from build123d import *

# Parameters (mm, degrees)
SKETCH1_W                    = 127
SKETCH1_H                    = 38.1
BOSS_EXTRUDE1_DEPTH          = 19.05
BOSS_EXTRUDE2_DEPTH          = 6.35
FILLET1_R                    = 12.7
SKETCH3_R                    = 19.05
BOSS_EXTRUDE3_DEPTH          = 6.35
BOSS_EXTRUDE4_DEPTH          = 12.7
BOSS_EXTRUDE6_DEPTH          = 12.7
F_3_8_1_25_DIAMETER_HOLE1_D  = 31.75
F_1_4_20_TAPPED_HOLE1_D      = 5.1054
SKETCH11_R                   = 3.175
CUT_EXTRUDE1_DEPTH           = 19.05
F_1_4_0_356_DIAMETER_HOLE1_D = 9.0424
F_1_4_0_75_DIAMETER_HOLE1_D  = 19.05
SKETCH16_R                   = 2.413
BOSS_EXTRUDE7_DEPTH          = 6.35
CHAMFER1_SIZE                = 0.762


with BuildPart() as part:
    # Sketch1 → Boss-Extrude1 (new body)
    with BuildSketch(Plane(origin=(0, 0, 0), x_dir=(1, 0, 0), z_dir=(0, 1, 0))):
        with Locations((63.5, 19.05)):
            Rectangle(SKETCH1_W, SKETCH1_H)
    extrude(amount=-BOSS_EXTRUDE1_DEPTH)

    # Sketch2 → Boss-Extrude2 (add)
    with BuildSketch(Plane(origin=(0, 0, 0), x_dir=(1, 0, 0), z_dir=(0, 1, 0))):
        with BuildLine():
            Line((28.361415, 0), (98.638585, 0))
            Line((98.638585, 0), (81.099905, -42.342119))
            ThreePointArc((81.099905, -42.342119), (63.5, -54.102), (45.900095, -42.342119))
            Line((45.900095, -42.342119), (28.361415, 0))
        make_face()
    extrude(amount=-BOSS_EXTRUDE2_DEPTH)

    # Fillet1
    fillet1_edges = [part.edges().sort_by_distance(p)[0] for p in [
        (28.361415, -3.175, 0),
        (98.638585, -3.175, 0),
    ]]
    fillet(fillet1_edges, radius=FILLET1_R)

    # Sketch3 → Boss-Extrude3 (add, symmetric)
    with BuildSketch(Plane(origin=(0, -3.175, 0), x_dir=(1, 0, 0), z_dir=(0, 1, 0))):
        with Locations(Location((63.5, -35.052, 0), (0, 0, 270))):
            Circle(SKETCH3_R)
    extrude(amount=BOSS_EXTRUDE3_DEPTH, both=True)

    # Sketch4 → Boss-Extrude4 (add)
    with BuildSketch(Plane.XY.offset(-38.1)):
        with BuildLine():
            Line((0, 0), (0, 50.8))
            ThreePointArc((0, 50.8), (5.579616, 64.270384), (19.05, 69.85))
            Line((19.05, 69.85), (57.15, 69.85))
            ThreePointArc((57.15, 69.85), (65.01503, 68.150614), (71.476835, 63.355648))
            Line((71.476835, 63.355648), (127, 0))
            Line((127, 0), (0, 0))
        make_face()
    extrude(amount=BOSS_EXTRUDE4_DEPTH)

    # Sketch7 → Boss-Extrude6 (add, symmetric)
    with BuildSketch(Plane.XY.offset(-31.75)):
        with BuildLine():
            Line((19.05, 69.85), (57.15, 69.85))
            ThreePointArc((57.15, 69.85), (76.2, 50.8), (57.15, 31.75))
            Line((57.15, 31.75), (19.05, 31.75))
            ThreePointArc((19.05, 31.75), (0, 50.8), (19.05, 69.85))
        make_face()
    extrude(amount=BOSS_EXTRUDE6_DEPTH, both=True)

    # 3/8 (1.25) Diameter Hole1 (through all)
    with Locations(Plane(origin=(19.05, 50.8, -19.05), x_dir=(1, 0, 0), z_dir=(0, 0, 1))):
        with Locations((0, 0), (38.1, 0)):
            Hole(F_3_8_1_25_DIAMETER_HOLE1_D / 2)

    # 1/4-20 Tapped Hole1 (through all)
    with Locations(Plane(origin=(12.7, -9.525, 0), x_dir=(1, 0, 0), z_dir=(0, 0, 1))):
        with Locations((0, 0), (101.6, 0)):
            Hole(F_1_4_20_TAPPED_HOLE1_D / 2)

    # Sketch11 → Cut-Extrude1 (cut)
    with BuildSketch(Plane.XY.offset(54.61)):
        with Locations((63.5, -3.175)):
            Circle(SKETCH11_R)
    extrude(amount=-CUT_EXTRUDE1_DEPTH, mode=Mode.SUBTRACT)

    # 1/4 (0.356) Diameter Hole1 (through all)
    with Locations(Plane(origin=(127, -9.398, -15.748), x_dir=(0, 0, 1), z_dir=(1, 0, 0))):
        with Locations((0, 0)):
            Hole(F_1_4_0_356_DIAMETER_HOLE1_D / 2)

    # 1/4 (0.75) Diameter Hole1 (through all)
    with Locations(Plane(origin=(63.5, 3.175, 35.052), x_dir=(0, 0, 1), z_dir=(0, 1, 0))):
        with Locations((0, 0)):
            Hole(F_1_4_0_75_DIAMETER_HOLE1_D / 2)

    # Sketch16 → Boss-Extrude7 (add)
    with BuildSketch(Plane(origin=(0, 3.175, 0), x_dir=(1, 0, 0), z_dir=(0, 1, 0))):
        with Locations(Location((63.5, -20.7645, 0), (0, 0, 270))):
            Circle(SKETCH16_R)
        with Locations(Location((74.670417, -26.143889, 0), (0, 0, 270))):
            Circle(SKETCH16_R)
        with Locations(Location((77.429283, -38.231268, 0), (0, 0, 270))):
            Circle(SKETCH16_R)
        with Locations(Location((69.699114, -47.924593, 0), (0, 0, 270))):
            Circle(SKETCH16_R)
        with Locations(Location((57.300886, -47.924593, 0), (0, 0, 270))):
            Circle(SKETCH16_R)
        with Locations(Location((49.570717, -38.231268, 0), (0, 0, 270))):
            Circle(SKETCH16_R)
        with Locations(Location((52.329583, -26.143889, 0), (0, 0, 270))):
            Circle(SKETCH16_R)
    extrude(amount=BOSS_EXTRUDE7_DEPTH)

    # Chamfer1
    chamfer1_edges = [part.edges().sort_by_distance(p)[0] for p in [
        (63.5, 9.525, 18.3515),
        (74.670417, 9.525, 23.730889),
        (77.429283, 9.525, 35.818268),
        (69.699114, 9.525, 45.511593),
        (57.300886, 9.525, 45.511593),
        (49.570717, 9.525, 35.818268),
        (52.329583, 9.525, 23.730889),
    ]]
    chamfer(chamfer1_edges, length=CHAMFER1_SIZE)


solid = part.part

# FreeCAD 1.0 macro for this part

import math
import FreeCAD as App
import Part
import Sketcher
Q = App.Units.Quantity


def edges_at(feature, points):
    """Names of the edges that pass closest to the given points."""
    edges = feature.Shape.Edges
    near = lambda p: min(range(len(edges)), key=lambda i: edges[i].distToShape(Part.Vertex(*p))[0])
    return sorted({f"Edge{near(p) + 1}" for p in points})


def add_polygon(sketch, points):
    """Adds a closed chain of lines whose ends are joined by coincident constraints."""
    first, n = sketch.GeometryCount, len(points)
    for a, b in zip(points, points[1:] + points[:1]):
        sketch.addGeometry(Part.LineSegment(App.Vector(*a, 0), App.Vector(*b, 0)), False)
    for i in range(n):
        sketch.addConstraint(Sketcher.Constraint("Coincident", first + i, 2, first + (i + 1) % n, 1))

doc = App.newDocument("Part")
body = doc.addObject("PartDesign::Body", "Body")

# Sketch on XZ plane
sketch1 = body.newObject("Sketcher::SketchObject", "Sketch")
sketch1.AttachmentSupport = (doc.getObject("XZ_Plane"), [""])
sketch1.MapMode = "FlatFace"
add_polygon(sketch1, [(0, -38), (0, 0), (127, 0), (127, -38)])  # lines 0-3
sketch1.addConstraint([
    Sketcher.Constraint("Vertical", 0),
    Sketcher.Constraint("Horizontal", 1),
    Sketcher.Constraint("Vertical", 2),
    Sketcher.Constraint("Horizontal", 3),
    Sketcher.Constraint("Coincident", 0, 2, -1, 1),
    Sketcher.Constraint("DistanceX", 1, 1, 1, 2, Q("5 in")),
    Sketcher.Constraint("DistanceY", 0, 1, 0, 2, Q("1.5 in")),
])
pad1 = body.newObject("PartDesign::Pad", "Pad")
pad1.Profile = sketch1
pad1.Length = Q("0.75 in")

# Sketch on XZ plane
sketch2 = body.newObject("Sketcher::SketchObject", "Sketch001")
sketch2.AttachmentSupport = (doc.getObject("XZ_Plane"), [""])
sketch2.MapMode = "FlatFace"
sketch2.addGeometry([
    Part.LineSegment(App.Vector(99, 0, 0), App.Vector(28, 0, 0)),
    Part.LineSegment(App.Vector(28, 0, 0), App.Vector(46, 42, 0)),
    Part.ArcOfCircle(Part.Circle(App.Vector(64, 35, 0), App.Vector(0, 0, 1), 19), math.radians(22), math.radians(158)),
    Part.LineSegment(App.Vector(81, 42, 0), App.Vector(99, 0, 0)),
], False)
sketch2.addConstraint([
    Sketcher.Constraint("Coincident", 0, 2, 1, 1),
    Sketcher.Constraint("Tangent", 1, 2, 2, 2),
    Sketcher.Constraint("Tangent", 2, 1, 3, 1),
    Sketcher.Constraint("Coincident", 3, 2, 0, 1),
    Sketcher.Constraint("Horizontal", 0),
    Sketcher.Constraint("PointOnObject", 0, 2, -1),
    Sketcher.Constraint("Horizontal", 1, 2, 2, 1),
    Sketcher.Constraint("Radius", 2, Q("0.75 in")),
    Sketcher.Constraint("DistanceX", -1, 1, 2, 3, Q("2.5 in")),
    Sketcher.Constraint("Angle", 1, Q("67.5 deg")),
    Sketcher.Constraint("DistanceY", -1, 1, 2, 3, Q("1.38 in")),
])
pad2 = body.newObject("PartDesign::Pad", "Pad001")
pad2.Profile = sketch2
pad2.Length = Q("0.25 in")
doc.recompute()

fillet = body.newObject("PartDesign::Fillet", "Fillet")
fillet.Base = (pad2, edges_at(pad2, [(28.361, -3.175, 0), (98.639, -3.175, 0)]))
fillet.Radius = Q("0.5 in")

# Sketch on XZ plane
sketch3 = body.newObject("Sketcher::SketchObject", "Sketch002")
sketch3.AttachmentSupport = (doc.getObject("XZ_Plane"), [""])
sketch3.MapMode = "FlatFace"
sketch3.AttachmentOffset = App.Placement(App.Vector(0, 0, 0.125 * 25.4), App.Rotation())
sketch3.addGeometry(Part.Circle(App.Vector(64, 35, 0), App.Vector(0, 0, 1), 19), False)
sketch3.addConstraint([
    Sketcher.Constraint("Diameter", 0, Q("1.5 in")),
    Sketcher.Constraint("DistanceX", -1, 1, 0, 3, Q("2.5 in")),
    Sketcher.Constraint("DistanceY", -1, 1, 0, 3, Q("1.38 in")),
])
pad3 = body.newObject("PartDesign::Pad", "Pad002")
pad3.Profile = sketch3
pad3.Length = Q("0.5 in")
pad3.Midplane = True

# Sketch on XY plane
sketch4 = body.newObject("Sketcher::SketchObject", "Sketch003")
sketch4.AttachmentSupport = (doc.getObject("XY_Plane"), [""])
sketch4.MapMode = "FlatFace"
sketch4.AttachmentOffset = App.Placement(App.Vector(0, 0, -1.5 * 25.4), App.Rotation())
sketch4.addGeometry([
    Part.LineSegment(App.Vector(0, 51, 0), App.Vector(0, 0, 0)),  # 0
    Part.LineSegment(App.Vector(0, 0, 0), App.Vector(127, 0, 0)),  # 1
    Part.LineSegment(App.Vector(127, 0, 0), App.Vector(71, 63, 0)),  # 2
    Part.ArcOfCircle(Part.Circle(App.Vector(57, 51, 0), App.Vector(0, 0, 1), 19), math.radians(41), math.radians(90)),  # 3
    Part.LineSegment(App.Vector(57, 70, 0), App.Vector(19, 70, 0)),  # 4
    Part.ArcOfCircle(Part.Circle(App.Vector(19, 51, 0), App.Vector(0, 0, 1), 19), math.radians(90), math.radians(180)),  # 5
], False)
sketch4.addConstraint([
    Sketcher.Constraint("Coincident", 0, 2, 1, 1),
    Sketcher.Constraint("Coincident", 1, 2, 2, 1),
    Sketcher.Constraint("Tangent", 2, 2, 3, 1),
    Sketcher.Constraint("Tangent", 3, 2, 4, 1),
    Sketcher.Constraint("Tangent", 4, 2, 5, 1),
    Sketcher.Constraint("Tangent", 5, 2, 0, 1),
    Sketcher.Constraint("Vertical", 0),
    Sketcher.Constraint("Horizontal", 1),
    Sketcher.Constraint("Horizontal", 4),
    Sketcher.Constraint("Coincident", 0, 2, -1, 1),
    Sketcher.Constraint("Equal", 3, 5),
    Sketcher.Constraint("DistanceX", 1, 1, 1, 2, Q("5 in")),
    Sketcher.Constraint("DistanceY", 0, 2, 0, 1, Q("2 in")),
    Sketcher.Constraint("Radius", 3, Q("0.75 in")),
    Sketcher.Constraint("DistanceX", 4, 2, 4, 1, Q("1.5 in")),
])
pad4 = body.newObject("PartDesign::Pad", "Pad003")
pad4.Profile = sketch4
pad4.Length = Q("0.5 in")

# Sketch on XY plane
sketch5 = body.newObject("Sketcher::SketchObject", "Sketch004")
sketch5.AttachmentSupport = (doc.getObject("XY_Plane"), [""])
sketch5.MapMode = "FlatFace"
sketch5.AttachmentOffset = App.Placement(App.Vector(0, 0, -1.25 * 25.4), App.Rotation())
sketch5.addGeometry([
    Part.LineSegment(App.Vector(57, 70, 0), App.Vector(19, 70, 0)),
    Part.ArcOfCircle(Part.Circle(App.Vector(19, 51, 0), App.Vector(0, 0, 1), 19), math.radians(90), math.radians(270)),
    Part.LineSegment(App.Vector(19, 32, 0), App.Vector(57, 32, 0)),
    Part.ArcOfCircle(Part.Circle(App.Vector(57, 51, 0), App.Vector(0, 0, 1), 19), math.radians(-90), math.radians(90)),
], False)
sketch5.addConstraint([
    Sketcher.Constraint("Tangent", 0, 2, 1, 1),
    Sketcher.Constraint("Tangent", 1, 2, 2, 1),
    Sketcher.Constraint("Tangent", 2, 2, 3, 1),
    Sketcher.Constraint("Tangent", 3, 2, 0, 1),
    Sketcher.Constraint("Horizontal", 0),
    Sketcher.Constraint("Horizontal", 2),
    Sketcher.Constraint("Radius", 1, Q("0.75 in")),
    Sketcher.Constraint("DistanceX", 0, 2, 0, 1, Q("1.5 in")),
    Sketcher.Constraint("DistanceY", -1, 1, 1, 3, Q("2 in")),
    Sketcher.Constraint("DistanceX", -1, 1, 1, 3, Q("0.75 in")),
])
pad5 = body.newObject("PartDesign::Pad", "Pad004")
pad5.Profile = sketch5
pad5.Length = Q("1 in")
pad5.Midplane = True

# Sketch on XY plane
sketch6 = body.newObject("Sketcher::SketchObject", "Sketch005")
sketch6.AttachmentSupport = (doc.getObject("XY_Plane"), [""])
sketch6.MapMode = "FlatFace"
sketch6.AttachmentOffset = App.Placement(App.Vector(0, 0, -0.75 * 25.4), App.Rotation())
sketch6.addGeometry([
    Part.Circle(App.Vector(19, 51, 0), App.Vector(0, 0, 1), 16),
    Part.Circle(App.Vector(57, 51, 0), App.Vector(0, 0, 1), 16),
], False)
sketch6.addConstraint([
    Sketcher.Constraint("Equal", 0, 1),
    Sketcher.Constraint("Horizontal", 0, 3, 1, 3),
    Sketcher.Constraint("Diameter", 0, Q("1.25 in")),
    Sketcher.Constraint("DistanceY", -1, 1, 0, 3, Q("2 in")),
    Sketcher.Constraint("DistanceX", 0, 3, 1, 3, Q("1.5 in")),
    Sketcher.Constraint("DistanceX", -1, 1, 0, 3, Q("0.75 in")),
])
doc.recompute()
hole = body.newObject("PartDesign::Hole", "Hole")
hole.Profile = sketch6
hole.ThreadType = "None"
hole.Diameter = Q("1.25 in")
hole.DepthType = "ThroughAll"

# Sketch on XY plane
sketch7 = body.newObject("Sketcher::SketchObject", "Sketch006")
sketch7.AttachmentSupport = (doc.getObject("XY_Plane"), [""])
sketch7.MapMode = "FlatFace"
sketch7.addGeometry([
    Part.Circle(App.Vector(12.7, -9.5, 0), App.Vector(0, 0, 1), 2.6),
    Part.Circle(App.Vector(114.3, -9.5, 0), App.Vector(0, 0, 1), 2.6),
], False)
sketch7.addConstraint([
    Sketcher.Constraint("Equal", 0, 1),
    Sketcher.Constraint("Horizontal", 0, 3, 1, 3),
    Sketcher.Constraint("Diameter", 0, Q("0.201 in")),
    Sketcher.Constraint("DistanceX", 0, 3, 1, 3, Q("4 in")),
    Sketcher.Constraint("DistanceX", -1, 1, 0, 3, Q("0.5 in")),
    Sketcher.Constraint("DistanceY", 0, 3, -1, 1, Q("0.375 in")),
])
doc.recompute()
hole2 = body.newObject("PartDesign::Hole", "Hole001")
hole2.Profile = sketch7
hole2.ThreadType = "None"
hole2.Diameter = Q("0.201 in")
hole2.DepthType = "ThroughAll"

# Sketch on XY plane
sketch8 = body.newObject("Sketcher::SketchObject", "Sketch007")
sketch8.AttachmentSupport = (doc.getObject("XY_Plane"), [""])
sketch8.MapMode = "FlatFace"
sketch8.AttachmentOffset = App.Placement(App.Vector(0, 0, 2.15 * 25.4), App.Rotation())
sketch8.addGeometry(Part.Circle(App.Vector(63.5, -3.2, 0), App.Vector(0, 0, 1), 3.2), False)
sketch8.addConstraint([
    Sketcher.Constraint("Diameter", 0, Q("0.25 in")),
    Sketcher.Constraint("DistanceX", -1, 1, 0, 3, Q("2.5 in")),
    Sketcher.Constraint("DistanceY", 0, 3, -1, 1, Q("0.125 in")),
])
pocket1 = body.newObject("PartDesign::Pocket", "Pocket")
pocket1.Profile = sketch8
pocket1.Length = Q("0.75 in")

# Sketch on YZ plane
sketch9 = body.newObject("Sketcher::SketchObject", "Sketch008")
sketch9.AttachmentSupport = (doc.getObject("YZ_Plane"), [""])
sketch9.MapMode = "FlatFace"
sketch9.AttachmentOffset = App.Placement(App.Vector(0, 0, 5 * 25.4), App.Rotation())
sketch9.addGeometry(Part.Circle(App.Vector(-9.4, -15.7, 0), App.Vector(0, 0, 1), 4.5), False)
sketch9.addConstraint([
    Sketcher.Constraint("Diameter", 0, Q("0.356 in")),
    Sketcher.Constraint("DistanceX", 0, 3, -1, 1, Q("0.37 in")),
    Sketcher.Constraint("DistanceY", 0, 3, -1, 1, Q("0.62 in")),
])
doc.recompute()
hole3 = body.newObject("PartDesign::Hole", "Hole002")
hole3.Profile = sketch9
hole3.ThreadType = "None"
hole3.Diameter = Q("0.356 in")
hole3.DepthType = "ThroughAll"

# Sketch on XZ plane
sketch10 = body.newObject("Sketcher::SketchObject", "Sketch009")
sketch10.AttachmentSupport = (doc.getObject("XZ_Plane"), [""])
sketch10.MapMode = "FlatFace"
sketch10.AttachmentOffset = App.Placement(App.Vector(0, 0, -0.125 * 25.4), App.Rotation())
sketch10.addGeometry(Part.Circle(App.Vector(64, 35, 0), App.Vector(0, 0, 1), 10), False)
sketch10.addConstraint([
    Sketcher.Constraint("Diameter", 0, Q("0.75 in")),
    Sketcher.Constraint("DistanceX", -1, 1, 0, 3, Q("2.5 in")),
    Sketcher.Constraint("DistanceY", -1, 1, 0, 3, Q("1.38 in")),
])
doc.recompute()
hole4 = body.newObject("PartDesign::Hole", "Hole003")
hole4.Profile = sketch10
hole4.ThreadType = "None"
hole4.Diameter = Q("0.75 in")
hole4.DepthType = "ThroughAll"
hole4.Reversed = True

# Sketch on XZ plane
sketch11 = body.newObject("Sketcher::SketchObject", "Sketch010")
sketch11.AttachmentSupport = (doc.getObject("XZ_Plane"), [""])
sketch11.MapMode = "FlatFace"
sketch11.AttachmentOffset = App.Placement(App.Vector(0, 0, -0.125 * 25.4), App.Rotation())
sketch11.addGeometry([
    Part.Circle(App.Vector(63.5, 20.8, 0), App.Vector(0, 0, 1), 2.4),  # 0
    Part.Circle(App.Vector(74.7, 26.1, 0), App.Vector(0, 0, 1), 2.4),  # 1
    Part.Circle(App.Vector(77.4, 38.2, 0), App.Vector(0, 0, 1), 2.4),  # 2
    Part.Circle(App.Vector(69.7, 47.9, 0), App.Vector(0, 0, 1), 2.4),  # 3
    Part.Circle(App.Vector(57.3, 47.9, 0), App.Vector(0, 0, 1), 2.4),  # 4
    Part.Circle(App.Vector(49.6, 38.2, 0), App.Vector(0, 0, 1), 2.4),  # 5
    Part.Circle(App.Vector(52.3, 26.1, 0), App.Vector(0, 0, 1), 2.4),  # 6
], False)
sketch11.addConstraint([
    Sketcher.Constraint("Equal", 0, 1),
    Sketcher.Constraint("Equal", 1, 2),
    Sketcher.Constraint("Equal", 2, 3),
    Sketcher.Constraint("Equal", 3, 4),
    Sketcher.Constraint("Equal", 4, 5),
    Sketcher.Constraint("Equal", 5, 6),
    Sketcher.Constraint("Horizontal", 3, 3, 4, 3),
    Sketcher.Constraint("Horizontal", 2, 3, 5, 3),
    Sketcher.Constraint("Horizontal", 1, 3, 6, 3),
    Sketcher.Constraint("Diameter", 0, Q("0.19 in")),
    Sketcher.Constraint("DistanceX", -1, 1, 0, 3, Q("2.5 in")),
    Sketcher.Constraint("DistanceY", -1, 1, 0, 3, Q("0.8175 in")),
    Sketcher.Constraint("DistanceX", 5, 3, 1, 3, Q("25.0997 mm")),
    Sketcher.Constraint("DistanceX", 6, 3, 2, 3, Q("25.0997 mm")),
    Sketcher.Constraint("DistanceY", -1, 1, 1, 3, Q("26.143889 mm")),
    Sketcher.Constraint("DistanceY", 1, 3, 2, 3, Q("12.087379 mm")),
    Sketcher.Constraint("DistanceX", 3, 3, 2, 3, Q("7.730169 mm")),
    Sketcher.Constraint("DistanceX", 4, 3, 1, 3, Q("17.369531 mm")),
    Sketcher.Constraint("DistanceX", -1, 1, 1, 3, Q("74.670417 mm")),
    Sketcher.Constraint("DistanceX", -1, 1, 2, 3, Q("77.429283 mm")),
    Sketcher.Constraint("DistanceY", -1, 1, 3, 3, Q("47.924593 mm")),
])
pad6 = body.newObject("PartDesign::Pad", "Pad005")
pad6.Profile = sketch11
pad6.Length = Q("0.25 in")
pad6.Reversed = True
doc.recompute()

chamfer = body.newObject("PartDesign::Chamfer", "Chamfer")
chamfer.Base = (pad6, edges_at(pad6, [
    (63.5, 9.525, 18.352),
    (74.67, 9.525, 23.731),
    (77.429, 9.525, 35.818),
    (69.699, 9.525, 45.512),
    (57.301, 9.525, 45.512),
    (49.571, 9.525, 35.818),
    (52.33, 9.525, 23.731),
]))
chamfer.Size = Q("0.03 in")

doc.recompute()
